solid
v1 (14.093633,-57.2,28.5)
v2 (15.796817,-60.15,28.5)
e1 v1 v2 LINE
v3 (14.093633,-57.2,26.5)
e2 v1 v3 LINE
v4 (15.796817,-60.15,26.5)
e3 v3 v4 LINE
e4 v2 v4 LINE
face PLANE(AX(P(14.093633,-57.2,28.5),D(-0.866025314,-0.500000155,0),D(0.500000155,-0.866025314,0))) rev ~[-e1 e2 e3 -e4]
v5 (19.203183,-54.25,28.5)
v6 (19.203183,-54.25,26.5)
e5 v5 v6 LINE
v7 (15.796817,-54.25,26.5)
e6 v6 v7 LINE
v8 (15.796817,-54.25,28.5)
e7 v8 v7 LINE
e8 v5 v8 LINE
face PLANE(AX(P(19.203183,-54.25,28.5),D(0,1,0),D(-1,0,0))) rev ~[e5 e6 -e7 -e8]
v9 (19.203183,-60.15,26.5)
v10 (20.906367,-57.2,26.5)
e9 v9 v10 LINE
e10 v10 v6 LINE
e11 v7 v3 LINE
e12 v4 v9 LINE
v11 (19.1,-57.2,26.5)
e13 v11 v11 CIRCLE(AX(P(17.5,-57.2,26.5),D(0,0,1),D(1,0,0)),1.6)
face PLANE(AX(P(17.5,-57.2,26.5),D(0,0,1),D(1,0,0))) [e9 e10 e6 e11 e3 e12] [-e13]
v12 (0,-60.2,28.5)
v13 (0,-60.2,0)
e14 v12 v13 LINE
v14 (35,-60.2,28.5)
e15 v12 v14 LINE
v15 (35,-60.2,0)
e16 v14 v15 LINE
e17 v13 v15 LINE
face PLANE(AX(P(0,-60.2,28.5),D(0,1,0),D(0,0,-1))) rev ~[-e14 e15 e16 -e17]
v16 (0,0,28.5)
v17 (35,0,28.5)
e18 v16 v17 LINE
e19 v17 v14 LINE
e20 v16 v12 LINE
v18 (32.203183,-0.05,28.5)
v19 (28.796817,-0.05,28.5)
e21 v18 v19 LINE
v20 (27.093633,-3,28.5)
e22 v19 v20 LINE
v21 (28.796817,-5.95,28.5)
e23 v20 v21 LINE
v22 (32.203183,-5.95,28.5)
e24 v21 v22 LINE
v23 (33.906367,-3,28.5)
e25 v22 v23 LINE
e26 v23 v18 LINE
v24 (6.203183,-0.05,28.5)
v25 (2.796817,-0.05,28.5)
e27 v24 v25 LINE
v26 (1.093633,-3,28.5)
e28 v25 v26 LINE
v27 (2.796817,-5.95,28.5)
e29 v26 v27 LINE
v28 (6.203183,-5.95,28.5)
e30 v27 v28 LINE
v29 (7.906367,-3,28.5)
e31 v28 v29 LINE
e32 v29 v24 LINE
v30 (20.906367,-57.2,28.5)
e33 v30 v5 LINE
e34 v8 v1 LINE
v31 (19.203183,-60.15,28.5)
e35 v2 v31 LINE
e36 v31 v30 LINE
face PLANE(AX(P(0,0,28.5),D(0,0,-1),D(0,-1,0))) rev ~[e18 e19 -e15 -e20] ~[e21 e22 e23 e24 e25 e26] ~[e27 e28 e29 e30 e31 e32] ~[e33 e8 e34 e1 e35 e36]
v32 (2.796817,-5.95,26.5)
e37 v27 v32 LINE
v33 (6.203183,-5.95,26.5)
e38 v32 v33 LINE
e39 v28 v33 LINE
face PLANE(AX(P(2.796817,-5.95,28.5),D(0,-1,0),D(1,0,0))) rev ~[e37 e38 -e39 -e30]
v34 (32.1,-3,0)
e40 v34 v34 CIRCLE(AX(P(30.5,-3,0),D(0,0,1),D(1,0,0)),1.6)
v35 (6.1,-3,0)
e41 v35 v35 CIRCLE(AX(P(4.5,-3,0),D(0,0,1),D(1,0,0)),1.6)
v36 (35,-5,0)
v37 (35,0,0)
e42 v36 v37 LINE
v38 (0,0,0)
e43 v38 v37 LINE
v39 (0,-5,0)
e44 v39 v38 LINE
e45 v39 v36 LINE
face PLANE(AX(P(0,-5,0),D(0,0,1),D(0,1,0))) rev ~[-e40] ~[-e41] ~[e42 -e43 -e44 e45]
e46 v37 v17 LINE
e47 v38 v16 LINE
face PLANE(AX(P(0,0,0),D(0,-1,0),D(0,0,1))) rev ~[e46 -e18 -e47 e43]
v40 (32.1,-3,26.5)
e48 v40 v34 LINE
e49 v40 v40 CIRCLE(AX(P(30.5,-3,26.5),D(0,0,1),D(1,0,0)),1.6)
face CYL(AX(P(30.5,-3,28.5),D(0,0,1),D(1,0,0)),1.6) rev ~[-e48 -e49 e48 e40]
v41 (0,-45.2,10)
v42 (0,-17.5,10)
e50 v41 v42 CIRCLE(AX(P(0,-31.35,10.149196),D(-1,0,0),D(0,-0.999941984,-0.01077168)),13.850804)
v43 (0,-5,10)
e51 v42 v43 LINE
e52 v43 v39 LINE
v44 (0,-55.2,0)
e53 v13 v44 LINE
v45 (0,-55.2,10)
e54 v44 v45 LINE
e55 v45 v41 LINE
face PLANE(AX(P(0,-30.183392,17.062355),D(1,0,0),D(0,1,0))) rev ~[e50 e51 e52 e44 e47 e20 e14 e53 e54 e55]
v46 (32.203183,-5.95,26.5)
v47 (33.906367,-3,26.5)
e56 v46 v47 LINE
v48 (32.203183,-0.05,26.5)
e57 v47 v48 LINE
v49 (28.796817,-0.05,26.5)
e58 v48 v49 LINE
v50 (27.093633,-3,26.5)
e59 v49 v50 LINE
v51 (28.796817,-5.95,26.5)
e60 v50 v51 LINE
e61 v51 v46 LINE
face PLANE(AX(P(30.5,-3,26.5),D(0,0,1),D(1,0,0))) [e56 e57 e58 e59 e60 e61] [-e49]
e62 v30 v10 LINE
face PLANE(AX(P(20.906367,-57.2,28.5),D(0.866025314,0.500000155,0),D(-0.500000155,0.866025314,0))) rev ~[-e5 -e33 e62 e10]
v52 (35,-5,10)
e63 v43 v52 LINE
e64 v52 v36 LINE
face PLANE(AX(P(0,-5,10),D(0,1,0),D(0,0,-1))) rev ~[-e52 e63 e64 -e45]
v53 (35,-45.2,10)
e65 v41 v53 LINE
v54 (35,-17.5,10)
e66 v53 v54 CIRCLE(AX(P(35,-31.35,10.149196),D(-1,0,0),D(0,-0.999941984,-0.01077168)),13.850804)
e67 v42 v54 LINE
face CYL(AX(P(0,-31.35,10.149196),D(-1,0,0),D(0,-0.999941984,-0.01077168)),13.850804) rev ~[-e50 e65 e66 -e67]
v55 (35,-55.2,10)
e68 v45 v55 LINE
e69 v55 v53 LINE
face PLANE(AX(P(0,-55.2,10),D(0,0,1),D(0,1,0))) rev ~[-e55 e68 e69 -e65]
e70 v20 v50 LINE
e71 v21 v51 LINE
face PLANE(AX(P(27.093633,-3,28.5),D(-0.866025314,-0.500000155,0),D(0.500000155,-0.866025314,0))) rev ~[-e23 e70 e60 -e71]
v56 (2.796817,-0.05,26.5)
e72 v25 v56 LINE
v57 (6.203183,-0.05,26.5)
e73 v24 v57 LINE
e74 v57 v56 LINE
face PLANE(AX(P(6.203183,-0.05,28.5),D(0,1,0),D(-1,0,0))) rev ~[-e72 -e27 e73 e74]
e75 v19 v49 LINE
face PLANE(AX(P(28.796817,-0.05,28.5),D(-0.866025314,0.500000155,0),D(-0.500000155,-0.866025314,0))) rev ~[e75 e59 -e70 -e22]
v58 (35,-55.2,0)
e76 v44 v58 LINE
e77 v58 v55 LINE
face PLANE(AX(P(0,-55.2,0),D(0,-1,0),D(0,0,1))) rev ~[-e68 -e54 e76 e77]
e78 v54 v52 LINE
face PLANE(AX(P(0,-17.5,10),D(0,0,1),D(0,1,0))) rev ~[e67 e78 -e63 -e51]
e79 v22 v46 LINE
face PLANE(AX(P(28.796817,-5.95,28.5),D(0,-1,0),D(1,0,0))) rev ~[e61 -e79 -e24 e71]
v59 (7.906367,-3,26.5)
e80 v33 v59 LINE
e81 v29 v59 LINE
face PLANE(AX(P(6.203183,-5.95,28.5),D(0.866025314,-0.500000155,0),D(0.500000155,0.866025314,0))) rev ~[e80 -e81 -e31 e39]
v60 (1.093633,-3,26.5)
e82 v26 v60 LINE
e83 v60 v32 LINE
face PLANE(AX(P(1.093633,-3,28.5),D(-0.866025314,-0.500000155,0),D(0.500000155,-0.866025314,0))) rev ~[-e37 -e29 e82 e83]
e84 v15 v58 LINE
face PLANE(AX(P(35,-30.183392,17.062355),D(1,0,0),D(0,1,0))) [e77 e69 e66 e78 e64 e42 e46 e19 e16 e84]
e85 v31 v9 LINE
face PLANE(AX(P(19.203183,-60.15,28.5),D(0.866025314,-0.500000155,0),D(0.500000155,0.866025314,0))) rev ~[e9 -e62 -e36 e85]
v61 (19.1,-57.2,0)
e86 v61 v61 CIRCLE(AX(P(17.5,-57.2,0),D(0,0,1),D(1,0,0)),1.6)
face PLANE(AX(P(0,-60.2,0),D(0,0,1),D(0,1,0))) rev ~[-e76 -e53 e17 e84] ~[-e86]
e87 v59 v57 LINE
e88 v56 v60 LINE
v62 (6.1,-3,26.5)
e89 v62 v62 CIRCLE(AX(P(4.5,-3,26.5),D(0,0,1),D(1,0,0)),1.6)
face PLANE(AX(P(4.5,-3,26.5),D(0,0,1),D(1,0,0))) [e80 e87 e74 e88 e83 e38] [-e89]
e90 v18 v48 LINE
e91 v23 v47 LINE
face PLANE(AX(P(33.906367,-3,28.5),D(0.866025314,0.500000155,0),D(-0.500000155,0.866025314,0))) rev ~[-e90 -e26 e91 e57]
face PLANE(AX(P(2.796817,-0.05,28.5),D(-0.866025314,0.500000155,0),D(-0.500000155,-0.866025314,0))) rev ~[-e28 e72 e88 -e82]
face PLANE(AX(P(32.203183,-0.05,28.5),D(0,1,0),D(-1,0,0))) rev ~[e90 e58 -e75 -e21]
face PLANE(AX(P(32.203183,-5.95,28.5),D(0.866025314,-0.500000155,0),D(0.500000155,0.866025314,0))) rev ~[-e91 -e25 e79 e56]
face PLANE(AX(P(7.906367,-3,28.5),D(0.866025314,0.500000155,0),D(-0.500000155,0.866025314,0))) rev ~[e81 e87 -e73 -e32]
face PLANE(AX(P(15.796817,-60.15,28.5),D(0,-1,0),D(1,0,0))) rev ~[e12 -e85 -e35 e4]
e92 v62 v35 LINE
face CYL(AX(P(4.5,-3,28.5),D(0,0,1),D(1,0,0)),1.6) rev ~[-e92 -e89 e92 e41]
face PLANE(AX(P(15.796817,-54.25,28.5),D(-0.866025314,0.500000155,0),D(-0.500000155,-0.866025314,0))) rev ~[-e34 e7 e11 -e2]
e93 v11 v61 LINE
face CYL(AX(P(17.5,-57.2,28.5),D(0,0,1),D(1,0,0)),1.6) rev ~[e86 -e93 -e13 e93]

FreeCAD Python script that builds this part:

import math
import FreeCAD as App
import Part
import Sketcher
from FreeCAD import Vector
Q = App.Units.Quantity

doc = App.newDocument("Part")
body = doc.addObject("PartDesign::Body", "Body")

sketch1 = body.newObject("Sketcher::SketchObject", "Sketch")
sketch1.AttachmentSupport = (doc.getObject("YZ_Plane"), [""])
sketch1.MapMode = "FlatFace"
sketch1.addGeometry([
    Part.LineSegment(Vector(0, 0, 0), Vector(0, 28.5, 0)),
    Part.LineSegment(Vector(0, 28.5, 0), Vector(-60.2, 28.5, 0)),
    Part.LineSegment(Vector(-60.2, 28.5, 0), Vector(-60.2, 0, 0)),
    Part.LineSegment(Vector(-60.2, 0, 0), Vector(-55.2, 0, 0)),
    Part.LineSegment(Vector(-55.2, 0, 0), Vector(-55.2, 10, 0)),
    Part.LineSegment(Vector(-55.2, 10, 0), Vector(-45.2, 10, 0)),
    Part.ArcOfCircle(Part.Circle(Vector(-31.35, 10.149196, 0), Vector(0, 0, 1), 13.850804), math.radians(-0.617184), math.radians(180.617184)),
    Part.LineSegment(Vector(-17.5, 10, 0), Vector(-5, 10, 0)),
    Part.LineSegment(Vector(-5, 10, 0), Vector(-5, 0, 0)),
    Part.LineSegment(Vector(-5, 0, 0), Vector(0, 0, 0)),
], False)
sketch1.addConstraint([
    Sketcher.Constraint("Coincident", 0, 2, 1, 1),
    Sketcher.Constraint("Coincident", 1, 2, 2, 1),
    Sketcher.Constraint("Coincident", 2, 2, 3, 1),
    Sketcher.Constraint("Coincident", 3, 2, 4, 1),
    Sketcher.Constraint("Coincident", 4, 2, 5, 1),
    Sketcher.Constraint("Coincident", 5, 2, 6, 2),
    Sketcher.Constraint("Coincident", 6, 1, 7, 1),
    Sketcher.Constraint("Coincident", 7, 2, 8, 1),
    Sketcher.Constraint("Coincident", 8, 2, 9, 1),
    Sketcher.Constraint("Coincident", 9, 2, 0, 1),
    Sketcher.Constraint("Vertical", 0),
    Sketcher.Constraint("Horizontal", 1),
    Sketcher.Constraint("Vertical", 2),
    Sketcher.Constraint("Horizontal", 3),
    Sketcher.Constraint("Vertical", 4),
    Sketcher.Constraint("Horizontal", 5),
    Sketcher.Constraint("Horizontal", 7),
    Sketcher.Constraint("Vertical", 8),
    Sketcher.Constraint("Horizontal", 9),
    Sketcher.Constraint("Coincident", 9, 2, -1, 1),
    Sketcher.Constraint("PointOnObject", 2, 2, -1),
    Sketcher.Constraint("Horizontal", 5, 2, 6, 1),
    Sketcher.Constraint("Equal", 3, 9),
    Sketcher.Constraint("Equal", 5, 4),
    Sketcher.Constraint("DistanceX", 3, 1, 3, 2, 5.0),
    Sketcher.Constraint("DistanceX", 5, 1, 5, 2, 10.0),
    Sketcher.Constraint("DistanceX", 1, 2, 1, 1, 60.2),
    Sketcher.Constraint("DistanceX", 7, 1, 7, 2, 12.5),
    Sketcher.Constraint("DistanceY", 0, 1, 0, 2, 28.5),
    Sketcher.Constraint("Radius", 6, 13.850804),
])
pad1 = body.newObject("PartDesign::Pad", "Pad")
pad1.Profile = sketch1
pad1.Length = 35

sketch2 = body.newObject("Sketcher::SketchObject", "Sketch001")
sketch2.AttachmentSupport = (doc.getObject("XY_Plane"), [""])
sketch2.MapMode = "FlatFace"
sketch2.AttachmentOffset = App.Placement(Vector(0, 0, 28.5), App.Rotation())
sketch2.addGeometry([
    Part.Circle(Vector(4.5, -3, 0), Vector(0, 0, 1), 1.6),
    Part.Circle(Vector(30.5, -3, 0), Vector(0, 0, 1), 1.6),
    Part.Circle(Vector(17.5, -57.2, 0), Vector(0, 0, 1), 1.6),
], False)
sketch2.addConstraint([
    Sketcher.Constraint("Equal", 0, 1),
    Sketcher.Constraint("Equal", 1, 2),
    Sketcher.Constraint("Horizontal", 0, 3, 1, 3),
    Sketcher.Constraint("Diameter", 0, 3.2),
    Sketcher.Constraint("DistanceY", 0, 3, -1, 1, 3.0),
    Sketcher.Constraint("DistanceX", 0, 3, 1, 3, 26.0),
    Sketcher.Constraint("DistanceX", 0, 3, 2, 3, 13.0),
    Sketcher.Constraint("DistanceX", -1, 1, 0, 3, 4.5),
    Sketcher.Constraint("DistanceY", 2, 3, -1, 1, 57.2),
])
pocket1 = body.newObject("PartDesign::Pocket", "Pocket")
pocket1.Profile = sketch2
pocket1.Type = "ThroughAll"

sketch3 = body.newObject("Sketcher::SketchObject", "Sketch002")
sketch3.AttachmentSupport = (doc.getObject("XY_Plane"), [""])
sketch3.MapMode = "FlatFace"
sketch3.AttachmentOffset = App.Placement(Vector(0, 0, 28.5), App.Rotation())
sketch3.addGeometry([
    Part.LineSegment(Vector(2.796817, -5.95, 0), Vector(6.203183, -5.95, 0)),
    Part.LineSegment(Vector(6.203183, -5.95, 0), Vector(7.906367, -3, 0)),
    Part.LineSegment(Vector(7.906367, -3, 0), Vector(6.203183, -0.05, 0)),
    Part.LineSegment(Vector(6.203183, -0.05, 0), Vector(2.796817, -0.05, 0)),
    Part.LineSegment(Vector(2.796817, -0.05, 0), Vector(1.093633, -3, 0)),
    Part.LineSegment(Vector(1.093633, -3, 0), Vector(2.796817, -5.95, 0)),
    Part.LineSegment(Vector(28.796817, -5.95, 0), Vector(32.203183, -5.95, 0)),
    Part.LineSegment(Vector(32.203183, -5.95, 0), Vector(33.906367, -3, 0)),
    Part.LineSegment(Vector(33.906367, -3, 0), Vector(32.203183, -0.05, 0)),
    Part.LineSegment(Vector(32.203183, -0.05, 0), Vector(28.796817, -0.05, 0)),
    Part.LineSegment(Vector(28.796817, -0.05, 0), Vector(27.093633, -3, 0)),
    Part.LineSegment(Vector(27.093633, -3, 0), Vector(28.796817, -5.95, 0)),
    Part.LineSegment(Vector(19.203183, -54.25, 0), Vector(15.796817, -54.25, 0)),
    Part.LineSegment(Vector(15.796817, -54.25, 0), Vector(14.093633, -57.2, 0)),
    Part.LineSegment(Vector(14.093633, -57.2, 0), Vector(15.796817, -60.15, 0)),
    Part.LineSegment(Vector(15.796817, -60.15, 0), Vector(19.203183, -60.15, 0)),
    Part.LineSegment(Vector(19.203183, -60.15, 0), Vector(20.906367, -57.2, 0)),
    Part.LineSegment(Vector(20.906367, -57.2, 0), Vector(19.203183, -54.25, 0)),
], False)
sketch3.addConstraint([
    Sketcher.Constraint("Coincident", 0, 2, 1, 1),
    Sketcher.Constraint("Coincident", 1, 2, 2, 1),
    Sketcher.Constraint("Coincident", 2, 2, 3, 1),
    Sketcher.Constraint("Coincident", 3, 2, 4, 1),
    Sketcher.Constraint("Coincident", 4, 2, 5, 1),
    Sketcher.Constraint("Coincident", 5, 2, 0, 1),
    Sketcher.Constraint("Coincident", 6, 2, 7, 1),
    Sketcher.Constraint("Coincident", 7, 2, 8, 1),
    Sketcher.Constraint("Coincident", 8, 2, 9, 1),
    Sketcher.Constraint("Coincident", 9, 2, 10, 1),
    Sketcher.Constraint("Coincident", 10, 2, 11, 1),
    Sketcher.Constraint("Coincident", 11, 2, 6, 1),
    Sketcher.Constraint("Coincident", 12, 2, 13, 1),
    Sketcher.Constraint("Coincident", 13, 2, 14, 1),
    Sketcher.Constraint("Coincident", 14, 2, 15, 1),
    Sketcher.Constraint("Coincident", 15, 2, 16, 1),
    Sketcher.Constraint("Coincident", 16, 2, 17, 1),
    Sketcher.Constraint("Coincident", 17, 2, 12, 1),
    Sketcher.Constraint("Horizontal", 0),
    Sketcher.Constraint("Horizontal", 3),
    Sketcher.Constraint("Horizontal", 6),
    Sketcher.Constraint("Horizontal", 9),
    Sketcher.Constraint("Horizontal", 12),
    Sketcher.Constraint("Horizontal", 15),
    Sketcher.Constraint("Parallel", 1, 4),
    Sketcher.Constraint("Parallel", 2, 5),
    Sketcher.Constraint("Parallel", 4, 7),
    Sketcher.Constraint("Parallel", 5, 8),
    Sketcher.Constraint("Parallel", 7, 10),
    Sketcher.Constraint("Parallel", 8, 11),
    Sketcher.Constraint("Parallel", 10, 13),
    Sketcher.Constraint("Parallel", 11, 14),
    Sketcher.Constraint("Parallel", 13, 16),
    Sketcher.Constraint("Parallel", 14, 17),
    Sketcher.Constraint("Horizontal", 1, 2, 4, 2),
    Sketcher.Constraint("Horizontal", 5, 2, 6, 2),
    Sketcher.Constraint("Horizontal", 4, 2, 7, 2),
    Sketcher.Constraint("Horizontal", 3, 2, 8, 2),
    Sketcher.Constraint("Horizontal", 7, 2, 10, 2),
    Sketcher.Constraint("Horizontal", 13, 2, 16, 2),
    Sketcher.Constraint("Vertical", 0, 2, 2, 2),
    Sketcher.Constraint("Vertical", 3, 2, 5, 2),
    Sketcher.Constraint("Vertical", 12, 2, 14, 2),
    Sketcher.Constraint("Equal", 3, 6),
    Sketcher.Constraint("Equal", 9, 12),
    Sketcher.Constraint("Equal", 11, 13),
    Sketcher.Constraint("Angle", 1, Q("59.99999 deg")),
    Sketcher.Constraint("DistanceY", 1, 2, -1, 1, 3.0),
    Sketcher.Constraint("DistanceX", 0, 2, 6, 2, 26.0),
    Sketcher.Constraint("DistanceX", 5, 2, 12, 2, 13.0),
    Sketcher.Constraint("DistanceY", 13, 2, -1, 1, 57.2),
    Sketcher.Constraint("DistanceY", 0, 2, 2, 2, 5.9),
    Sketcher.Constraint("DistanceX", 0, 1, 0, 2, 3.406366),
    Sketcher.Constraint("DistanceX", -1, 1, 0, 2, 6.203183),
])
pocket2 = body.newObject("PartDesign::Pocket", "Pocket001")
pocket2.Profile = sketch3
pocket2.Length = 2

doc.recompute()
